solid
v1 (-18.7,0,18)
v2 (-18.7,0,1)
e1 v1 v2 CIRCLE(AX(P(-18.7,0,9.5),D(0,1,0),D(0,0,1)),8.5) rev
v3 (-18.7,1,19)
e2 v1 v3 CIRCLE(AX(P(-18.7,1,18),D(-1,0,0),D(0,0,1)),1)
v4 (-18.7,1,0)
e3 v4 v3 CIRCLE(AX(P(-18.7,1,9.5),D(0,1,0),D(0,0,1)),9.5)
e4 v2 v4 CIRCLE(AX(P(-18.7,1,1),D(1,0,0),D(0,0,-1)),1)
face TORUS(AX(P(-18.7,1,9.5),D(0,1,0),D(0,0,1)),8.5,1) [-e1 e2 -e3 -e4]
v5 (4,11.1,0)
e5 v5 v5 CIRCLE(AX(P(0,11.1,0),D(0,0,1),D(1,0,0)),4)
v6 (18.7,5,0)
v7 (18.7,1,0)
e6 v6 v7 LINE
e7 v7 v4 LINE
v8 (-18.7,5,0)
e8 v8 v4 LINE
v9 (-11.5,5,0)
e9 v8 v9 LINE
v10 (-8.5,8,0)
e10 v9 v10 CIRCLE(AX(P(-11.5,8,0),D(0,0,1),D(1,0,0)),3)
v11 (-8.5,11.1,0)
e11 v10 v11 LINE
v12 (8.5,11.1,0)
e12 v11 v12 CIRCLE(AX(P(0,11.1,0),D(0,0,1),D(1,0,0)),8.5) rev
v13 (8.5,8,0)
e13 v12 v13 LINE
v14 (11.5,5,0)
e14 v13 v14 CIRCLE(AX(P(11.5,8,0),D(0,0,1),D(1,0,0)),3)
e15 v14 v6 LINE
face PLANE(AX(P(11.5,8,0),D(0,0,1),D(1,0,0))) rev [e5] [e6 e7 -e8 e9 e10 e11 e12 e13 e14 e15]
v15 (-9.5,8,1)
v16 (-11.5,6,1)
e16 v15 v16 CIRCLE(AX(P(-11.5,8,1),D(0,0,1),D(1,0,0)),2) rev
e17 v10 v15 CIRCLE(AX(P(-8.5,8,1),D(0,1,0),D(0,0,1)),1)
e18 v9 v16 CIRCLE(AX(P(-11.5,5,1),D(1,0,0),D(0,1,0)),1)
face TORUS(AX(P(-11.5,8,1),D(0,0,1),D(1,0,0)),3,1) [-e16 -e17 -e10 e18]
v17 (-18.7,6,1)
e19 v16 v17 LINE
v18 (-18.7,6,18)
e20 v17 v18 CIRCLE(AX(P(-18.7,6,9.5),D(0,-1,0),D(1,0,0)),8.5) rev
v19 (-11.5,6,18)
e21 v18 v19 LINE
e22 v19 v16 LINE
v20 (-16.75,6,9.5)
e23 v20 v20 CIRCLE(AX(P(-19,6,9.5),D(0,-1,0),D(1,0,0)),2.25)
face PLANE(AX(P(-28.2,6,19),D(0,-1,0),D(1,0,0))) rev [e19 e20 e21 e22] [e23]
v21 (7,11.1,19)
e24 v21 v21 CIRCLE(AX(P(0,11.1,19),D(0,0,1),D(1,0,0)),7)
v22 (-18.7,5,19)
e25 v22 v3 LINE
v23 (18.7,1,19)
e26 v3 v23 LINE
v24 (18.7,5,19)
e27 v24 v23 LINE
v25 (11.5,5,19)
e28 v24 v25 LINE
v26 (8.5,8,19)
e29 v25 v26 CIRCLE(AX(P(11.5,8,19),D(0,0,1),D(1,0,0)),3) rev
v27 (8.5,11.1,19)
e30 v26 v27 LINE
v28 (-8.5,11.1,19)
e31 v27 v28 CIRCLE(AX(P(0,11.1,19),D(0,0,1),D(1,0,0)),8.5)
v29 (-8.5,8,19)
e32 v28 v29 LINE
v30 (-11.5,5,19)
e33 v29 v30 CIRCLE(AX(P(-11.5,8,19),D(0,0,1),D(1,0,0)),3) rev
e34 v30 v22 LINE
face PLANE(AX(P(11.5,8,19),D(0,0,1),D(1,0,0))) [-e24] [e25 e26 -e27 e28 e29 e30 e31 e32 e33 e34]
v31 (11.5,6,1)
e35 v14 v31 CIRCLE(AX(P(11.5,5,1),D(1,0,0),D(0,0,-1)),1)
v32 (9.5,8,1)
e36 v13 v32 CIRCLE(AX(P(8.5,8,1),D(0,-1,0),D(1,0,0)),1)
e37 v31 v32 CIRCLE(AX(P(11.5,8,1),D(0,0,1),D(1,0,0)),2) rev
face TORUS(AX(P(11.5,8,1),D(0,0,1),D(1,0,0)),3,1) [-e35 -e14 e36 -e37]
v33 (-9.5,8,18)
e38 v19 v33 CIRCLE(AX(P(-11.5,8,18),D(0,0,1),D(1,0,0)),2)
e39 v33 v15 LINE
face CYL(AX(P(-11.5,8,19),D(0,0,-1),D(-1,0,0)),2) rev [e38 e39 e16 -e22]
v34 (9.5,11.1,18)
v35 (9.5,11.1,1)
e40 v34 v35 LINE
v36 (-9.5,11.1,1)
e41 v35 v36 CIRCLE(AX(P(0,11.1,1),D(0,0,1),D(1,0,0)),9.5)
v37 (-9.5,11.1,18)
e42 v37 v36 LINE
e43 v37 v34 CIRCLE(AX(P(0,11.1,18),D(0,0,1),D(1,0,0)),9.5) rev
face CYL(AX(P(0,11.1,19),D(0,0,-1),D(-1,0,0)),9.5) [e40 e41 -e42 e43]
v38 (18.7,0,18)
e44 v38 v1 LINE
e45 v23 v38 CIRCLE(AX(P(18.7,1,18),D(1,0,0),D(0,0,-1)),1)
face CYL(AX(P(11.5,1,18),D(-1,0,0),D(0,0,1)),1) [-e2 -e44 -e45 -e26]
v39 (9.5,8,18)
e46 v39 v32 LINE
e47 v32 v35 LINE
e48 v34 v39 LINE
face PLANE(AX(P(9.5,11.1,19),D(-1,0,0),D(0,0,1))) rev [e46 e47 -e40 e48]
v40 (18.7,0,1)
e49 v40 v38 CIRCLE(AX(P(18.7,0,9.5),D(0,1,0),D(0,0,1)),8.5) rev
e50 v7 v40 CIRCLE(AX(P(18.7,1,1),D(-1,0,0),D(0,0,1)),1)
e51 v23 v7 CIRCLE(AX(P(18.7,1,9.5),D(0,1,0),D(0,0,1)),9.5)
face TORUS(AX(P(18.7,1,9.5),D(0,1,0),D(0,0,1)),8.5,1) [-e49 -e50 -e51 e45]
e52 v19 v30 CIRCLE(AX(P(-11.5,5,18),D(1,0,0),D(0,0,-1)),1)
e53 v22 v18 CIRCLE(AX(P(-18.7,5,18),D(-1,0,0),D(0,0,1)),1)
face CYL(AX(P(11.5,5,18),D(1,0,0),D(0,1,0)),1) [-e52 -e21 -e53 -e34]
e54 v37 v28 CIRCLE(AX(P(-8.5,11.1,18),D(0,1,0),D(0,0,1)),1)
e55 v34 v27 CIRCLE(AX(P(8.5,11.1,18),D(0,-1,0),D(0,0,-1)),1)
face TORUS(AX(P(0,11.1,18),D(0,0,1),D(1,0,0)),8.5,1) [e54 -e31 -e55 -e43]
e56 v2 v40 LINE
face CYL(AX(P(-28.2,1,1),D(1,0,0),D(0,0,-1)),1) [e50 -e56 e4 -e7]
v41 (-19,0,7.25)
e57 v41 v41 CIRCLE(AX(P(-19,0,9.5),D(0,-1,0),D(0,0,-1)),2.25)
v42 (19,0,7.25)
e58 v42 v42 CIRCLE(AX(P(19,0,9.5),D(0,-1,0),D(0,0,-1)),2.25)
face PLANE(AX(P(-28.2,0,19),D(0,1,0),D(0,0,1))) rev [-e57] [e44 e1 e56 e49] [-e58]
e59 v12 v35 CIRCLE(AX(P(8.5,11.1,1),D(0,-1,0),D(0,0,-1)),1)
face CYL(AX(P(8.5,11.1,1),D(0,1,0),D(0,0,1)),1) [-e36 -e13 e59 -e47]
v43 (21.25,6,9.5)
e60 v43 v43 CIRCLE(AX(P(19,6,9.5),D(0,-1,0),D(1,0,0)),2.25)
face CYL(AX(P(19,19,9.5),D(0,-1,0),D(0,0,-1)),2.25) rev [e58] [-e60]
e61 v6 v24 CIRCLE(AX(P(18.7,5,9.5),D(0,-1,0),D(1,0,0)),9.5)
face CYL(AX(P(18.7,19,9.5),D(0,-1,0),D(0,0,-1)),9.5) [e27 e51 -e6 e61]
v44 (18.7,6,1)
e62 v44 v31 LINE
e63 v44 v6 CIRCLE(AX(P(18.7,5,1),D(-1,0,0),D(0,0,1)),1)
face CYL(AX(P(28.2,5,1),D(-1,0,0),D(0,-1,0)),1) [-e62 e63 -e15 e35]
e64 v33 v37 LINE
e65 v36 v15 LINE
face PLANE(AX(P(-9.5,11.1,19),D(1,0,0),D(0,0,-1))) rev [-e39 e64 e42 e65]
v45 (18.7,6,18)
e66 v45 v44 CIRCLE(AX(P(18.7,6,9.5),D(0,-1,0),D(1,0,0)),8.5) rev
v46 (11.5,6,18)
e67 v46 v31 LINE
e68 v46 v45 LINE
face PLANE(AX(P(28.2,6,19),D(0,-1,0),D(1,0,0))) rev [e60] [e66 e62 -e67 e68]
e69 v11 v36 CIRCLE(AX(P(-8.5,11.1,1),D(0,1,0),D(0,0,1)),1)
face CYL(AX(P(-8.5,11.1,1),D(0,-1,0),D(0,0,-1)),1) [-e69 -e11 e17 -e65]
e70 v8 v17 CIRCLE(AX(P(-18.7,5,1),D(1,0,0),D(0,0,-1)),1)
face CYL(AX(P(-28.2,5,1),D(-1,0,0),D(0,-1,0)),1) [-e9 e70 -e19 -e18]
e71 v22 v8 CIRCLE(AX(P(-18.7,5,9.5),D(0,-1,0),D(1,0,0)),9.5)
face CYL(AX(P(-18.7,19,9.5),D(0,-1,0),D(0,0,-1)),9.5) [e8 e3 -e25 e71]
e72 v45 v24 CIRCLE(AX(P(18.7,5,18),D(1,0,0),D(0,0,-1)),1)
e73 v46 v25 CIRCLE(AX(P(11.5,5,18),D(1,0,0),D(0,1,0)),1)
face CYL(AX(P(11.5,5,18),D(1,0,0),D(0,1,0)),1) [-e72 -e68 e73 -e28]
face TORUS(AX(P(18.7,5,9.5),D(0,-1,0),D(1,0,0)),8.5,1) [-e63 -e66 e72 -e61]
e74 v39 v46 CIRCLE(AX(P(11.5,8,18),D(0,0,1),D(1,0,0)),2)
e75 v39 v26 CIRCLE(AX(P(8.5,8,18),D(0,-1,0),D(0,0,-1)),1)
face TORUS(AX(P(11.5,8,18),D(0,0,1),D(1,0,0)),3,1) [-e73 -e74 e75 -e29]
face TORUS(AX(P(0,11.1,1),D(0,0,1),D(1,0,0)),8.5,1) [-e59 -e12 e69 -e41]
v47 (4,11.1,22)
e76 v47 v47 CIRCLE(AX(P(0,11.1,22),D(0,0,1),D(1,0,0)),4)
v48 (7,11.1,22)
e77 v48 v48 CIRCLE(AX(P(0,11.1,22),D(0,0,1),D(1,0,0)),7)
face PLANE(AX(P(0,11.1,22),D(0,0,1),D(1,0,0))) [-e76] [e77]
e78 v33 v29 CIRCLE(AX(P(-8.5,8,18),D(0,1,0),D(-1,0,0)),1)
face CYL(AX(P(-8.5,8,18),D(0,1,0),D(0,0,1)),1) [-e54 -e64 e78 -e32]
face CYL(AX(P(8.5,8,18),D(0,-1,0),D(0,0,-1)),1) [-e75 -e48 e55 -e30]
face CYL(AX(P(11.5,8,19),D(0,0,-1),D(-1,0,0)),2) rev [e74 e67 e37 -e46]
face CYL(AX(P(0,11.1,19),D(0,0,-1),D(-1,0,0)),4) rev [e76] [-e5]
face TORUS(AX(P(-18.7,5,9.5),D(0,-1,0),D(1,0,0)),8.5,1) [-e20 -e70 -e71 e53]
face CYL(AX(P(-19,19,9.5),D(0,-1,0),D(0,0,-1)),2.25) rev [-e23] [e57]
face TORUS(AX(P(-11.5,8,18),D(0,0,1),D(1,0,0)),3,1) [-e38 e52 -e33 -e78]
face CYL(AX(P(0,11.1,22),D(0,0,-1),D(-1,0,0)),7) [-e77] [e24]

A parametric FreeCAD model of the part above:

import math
import FreeCAD as App
import Part
import Sketcher


def edges_at(feature, points):
    """Names of the edges that pass closest to the given points."""
    edges = feature.Shape.Edges
    near = lambda p: min(range(len(edges)), key=lambda i: edges[i].distToShape(Part.Vertex(*p))[0])
    return sorted({f"Edge{near(p) + 1}" for p in points})

doc = App.newDocument("Part")
body = doc.addObject("PartDesign::Body", "Body")

# Sketch on XY plane
sketch1 = body.newObject("Sketcher::SketchObject", "Sketch")
sketch1.AttachmentSupport = (doc.getObject("XY_Plane"), [""])
sketch1.MapMode = "FlatFace"
sketch1.addGeometry([
    Part.LineSegment(App.Vector(-28.2, 0, 0), App.Vector(28.2, 0, 0)),  # 0
    Part.LineSegment(App.Vector(28.2, 0, 0), App.Vector(28.2, 6, 0)),  # 1
    Part.LineSegment(App.Vector(28.2, 6, 0), App.Vector(11.5, 6, 0)),  # 2
    Part.ArcOfCircle(Part.Circle(App.Vector(11.5, 8, 0), App.Vector(0, 0, 1), 2), math.radians(-180), math.radians(-90)),  # 3
    Part.LineSegment(App.Vector(9.5, 8, 0), App.Vector(9.5, 11.1, 0)),  # 4
    Part.ArcOfCircle(Part.Circle(App.Vector(0, 11.1, 0), App.Vector(0, 0, 1), 9.5), math.radians(0), math.radians(180)),  # 5
    Part.LineSegment(App.Vector(-9.5, 11.1, 0), App.Vector(-9.5, 8, 0)),  # 6
    Part.ArcOfCircle(Part.Circle(App.Vector(-11.5, 8, 0), App.Vector(0, 0, 1), 2), math.radians(-90), math.radians(0)),  # 7
    Part.LineSegment(App.Vector(-11.5, 6, 0), App.Vector(-28.2, 6, 0)),  # 8
    Part.LineSegment(App.Vector(-28.2, 6, 0), App.Vector(-28.2, 0, 0)),  # 9
    Part.Circle(App.Vector(0, 11.1, 0), App.Vector(0, 0, 1), 4),  # 10
], False)
sketch1.addConstraint([
    Sketcher.Constraint("Coincident", 0, 2, 1, 1),
    Sketcher.Constraint("Coincident", 1, 2, 2, 1),
    Sketcher.Constraint("Tangent", 2, 2, 3, 2),
    Sketcher.Constraint("Tangent", 3, 1, 4, 1),
    Sketcher.Constraint("Tangent", 4, 2, 5, 1),
    Sketcher.Constraint("Tangent", 5, 2, 6, 1),
    Sketcher.Constraint("Tangent", 6, 2, 7, 2),
    Sketcher.Constraint("Tangent", 7, 1, 8, 1),
    Sketcher.Constraint("Coincident", 8, 2, 9, 1),
    Sketcher.Constraint("Coincident", 9, 2, 0, 1),
    Sketcher.Constraint("Horizontal", 0),
    Sketcher.Constraint("Vertical", 1),
    Sketcher.Constraint("Horizontal", 2),
    Sketcher.Constraint("Vertical", 4),
    Sketcher.Constraint("Vertical", 6),
    Sketcher.Constraint("Horizontal", 8),
    Sketcher.Constraint("Vertical", 9),
    Sketcher.Constraint("Coincident", 10, 3, 5, 3),
    Sketcher.Constraint("Equal", 3, 7),
    Sketcher.Constraint("Symmetric", 0, 2, 9, 2, -1, 1),
    Sketcher.Constraint("Symmetric", 3, 3, 7, 3, -2),
    Sketcher.Constraint("Diameter", 10, 8.0),
    Sketcher.Constraint("Radius", 3, 2.0),
    Sketcher.Constraint("Radius", 5, 9.5),
    Sketcher.Constraint("DistanceY", 1, 1, 1, 2, 6.0),
    Sketcher.Constraint("DistanceX", 0, 1, 0, 2, 56.4),
    Sketcher.Constraint("DistanceY", 4, 1, 4, 2, 3.1),
])
pad1 = body.newObject("PartDesign::Pad", "Pad")
pad1.Profile = sketch1
pad1.Length = 19

# Sketch on XZ plane
sketch2 = body.newObject("Sketcher::SketchObject", "Sketch001")
sketch2.AttachmentSupport = (doc.getObject("XZ_Plane"), [""])
sketch2.MapMode = "FlatFace"
sketch2.addGeometry([
    Part.LineSegment(App.Vector(28.2, 19, 0), App.Vector(18.7, 19, 0)),  # 0
    Part.ArcOfCircle(Part.Circle(App.Vector(18.7, 9.5, 0), App.Vector(0, 0, 1), 9.5), math.radians(0), math.radians(90)),  # 1
    Part.LineSegment(App.Vector(28.2, 9.5, 0), App.Vector(28.2, 19, 0)),  # 2
    Part.ArcOfCircle(Part.Circle(App.Vector(-18.7, 9.5, 0), App.Vector(0, 0, 1), 9.5), math.radians(90), math.radians(180)),  # 3
    Part.LineSegment(App.Vector(-18.7, 19, 0), App.Vector(-28.2, 19, 0)),  # 4
    Part.LineSegment(App.Vector(-28.2, 19, 0), App.Vector(-28.2, 9.5, 0)),  # 5
    Part.LineSegment(App.Vector(28.2, 0, 0), App.Vector(28.2, 9.5, 0)),  # 6
    Part.ArcOfCircle(Part.Circle(App.Vector(18.7, 9.5, 0), App.Vector(0, 0, 1), 9.5), math.radians(-90), math.radians(0)),  # 7
    Part.LineSegment(App.Vector(18.7, 0, 0), App.Vector(28.2, 0, 0)),  # 8
    Part.ArcOfCircle(Part.Circle(App.Vector(-18.7, 9.5, 0), App.Vector(0, 0, 1), 9.5), math.radians(-180), math.radians(-90)),  # 9
    Part.LineSegment(App.Vector(-28.2, 9.5, 0), App.Vector(-28.2, 0, 0)),  # 10
    Part.LineSegment(App.Vector(-28.2, 0, 0), App.Vector(-18.7, 0, 0)),  # 11
    Part.Circle(App.Vector(19, 9.5, 0), App.Vector(0, 0, 1), 2.25),  # 12
    Part.Circle(App.Vector(-19, 9.5, 0), App.Vector(0, 0, 1), 2.25),  # 13
], False)
sketch2.addConstraint([
    Sketcher.Constraint("Tangent", 0, 2, 1, 2),
    Sketcher.Constraint("Tangent", 1, 1, 2, 1),
    Sketcher.Constraint("Coincident", 2, 2, 0, 1),
    Sketcher.Constraint("Tangent", 3, 1, 4, 1),
    Sketcher.Constraint("Coincident", 4, 2, 5, 1),
    Sketcher.Constraint("Tangent", 5, 2, 3, 2),
    Sketcher.Constraint("Tangent", 6, 2, 7, 2),
    Sketcher.Constraint("Tangent", 7, 1, 8, 1),
    Sketcher.Constraint("Coincident", 8, 2, 6, 1),
    Sketcher.Constraint("Tangent", 9, 1, 10, 1),
    Sketcher.Constraint("Coincident", 10, 2, 11, 1),
    Sketcher.Constraint("Tangent", 11, 2, 9, 2),
    Sketcher.Constraint("Horizontal", 0),
    Sketcher.Constraint("Vertical", 2),
    Sketcher.Constraint("Horizontal", 4),
    Sketcher.Constraint("Vertical", 5),
    Sketcher.Constraint("Vertical", 6),
    Sketcher.Constraint("Horizontal", 8),
    Sketcher.Constraint("Vertical", 10),
    Sketcher.Constraint("Horizontal", 11),
    Sketcher.Constraint("Coincident", 7, 3, 1, 3),
    Sketcher.Constraint("Coincident", 9, 3, 3, 3),
    Sketcher.Constraint("Equal", 1, 3),
    Sketcher.Constraint("Equal", 3, 7),
    Sketcher.Constraint("Equal", 7, 9),
    Sketcher.Constraint("Equal", 12, 13),
    Sketcher.Constraint("Symmetric", 8, 2, 10, 2, -1, 1),
    Sketcher.Constraint("Symmetric", 12, 3, 13, 3, -2),
    Sketcher.Constraint("PointOnObject", 7, 1, -1),
    Sketcher.Constraint("Horizontal", 9, 3, 12, 3),
    Sketcher.Constraint("Diameter", 12, 4.5),
    Sketcher.Constraint("Radius", 1, 9.5),
    Sketcher.Constraint("DistanceX", -1, 1, 12, 3, 19.0),
    Sketcher.Constraint("DistanceX", -1, 1, 1, 3, 18.7),
])
pocket1 = body.newObject("PartDesign::Pocket", "Pocket")
pocket1.Profile = sketch2
pocket1.Length = 19

# Sketch on XY plane
sketch3 = body.newObject("Sketcher::SketchObject", "Sketch002")
sketch3.AttachmentSupport = (doc.getObject("XY_Plane"), [""])
sketch3.MapMode = "FlatFace"
sketch3.AttachmentOffset = App.Placement(App.Vector(0, 0, 19), App.Rotation())
sketch3.addGeometry([
    Part.Circle(App.Vector(0, 11.1, 0), App.Vector(0, 0, 1), 7),
    Part.Circle(App.Vector(0, 11.1, 0), App.Vector(0, 0, 1), 4),
], False)
sketch3.addConstraint([
    Sketcher.Constraint("Coincident", 1, 3, 0, 3),
    Sketcher.Constraint("PointOnObject", 0, 3, -2),
    Sketcher.Constraint("Diameter", 0, 14.0),
    Sketcher.Constraint("Diameter", 1, 8.0),
    Sketcher.Constraint("DistanceY", -1, 1, 0, 3, 11.1),
])
pad2 = body.newObject("PartDesign::Pad", "Pad001")
pad2.Profile = sketch3
pad2.Length = 3
doc.recompute()

fillet = body.newObject("PartDesign::Fillet", "Fillet")
fillet.Base = (pad2, edges_at(pad2, [
    (10.086, 6.586, 19),
    (-15.1, 6, 0),
    (-10.086, 6.586, 0),
    (-9.5, 9.55, 0),
    (0, 20.6, 0),
    (9.5, 9.55, 0),
    (10.086, 6.586, 0),
    (9.5, 9.55, 19),
    (0, 20.6, 19),
    (-9.5, 9.55, 19),
    (-10.086, 6.586, 19),
    (-15.1, 6, 19),
    (0, 0, 19),
    (-25.418, 6, 16.218),
    (-25.418, 0, 2.782),
    (0, 0, 0),
    (15.1, 6, 19),
    (25.418, 0, 2.782),
    (28.2, 3, 9.5),
    (15.1, 6, 0),
]))
fillet.Radius = 1

doc.recompute()
